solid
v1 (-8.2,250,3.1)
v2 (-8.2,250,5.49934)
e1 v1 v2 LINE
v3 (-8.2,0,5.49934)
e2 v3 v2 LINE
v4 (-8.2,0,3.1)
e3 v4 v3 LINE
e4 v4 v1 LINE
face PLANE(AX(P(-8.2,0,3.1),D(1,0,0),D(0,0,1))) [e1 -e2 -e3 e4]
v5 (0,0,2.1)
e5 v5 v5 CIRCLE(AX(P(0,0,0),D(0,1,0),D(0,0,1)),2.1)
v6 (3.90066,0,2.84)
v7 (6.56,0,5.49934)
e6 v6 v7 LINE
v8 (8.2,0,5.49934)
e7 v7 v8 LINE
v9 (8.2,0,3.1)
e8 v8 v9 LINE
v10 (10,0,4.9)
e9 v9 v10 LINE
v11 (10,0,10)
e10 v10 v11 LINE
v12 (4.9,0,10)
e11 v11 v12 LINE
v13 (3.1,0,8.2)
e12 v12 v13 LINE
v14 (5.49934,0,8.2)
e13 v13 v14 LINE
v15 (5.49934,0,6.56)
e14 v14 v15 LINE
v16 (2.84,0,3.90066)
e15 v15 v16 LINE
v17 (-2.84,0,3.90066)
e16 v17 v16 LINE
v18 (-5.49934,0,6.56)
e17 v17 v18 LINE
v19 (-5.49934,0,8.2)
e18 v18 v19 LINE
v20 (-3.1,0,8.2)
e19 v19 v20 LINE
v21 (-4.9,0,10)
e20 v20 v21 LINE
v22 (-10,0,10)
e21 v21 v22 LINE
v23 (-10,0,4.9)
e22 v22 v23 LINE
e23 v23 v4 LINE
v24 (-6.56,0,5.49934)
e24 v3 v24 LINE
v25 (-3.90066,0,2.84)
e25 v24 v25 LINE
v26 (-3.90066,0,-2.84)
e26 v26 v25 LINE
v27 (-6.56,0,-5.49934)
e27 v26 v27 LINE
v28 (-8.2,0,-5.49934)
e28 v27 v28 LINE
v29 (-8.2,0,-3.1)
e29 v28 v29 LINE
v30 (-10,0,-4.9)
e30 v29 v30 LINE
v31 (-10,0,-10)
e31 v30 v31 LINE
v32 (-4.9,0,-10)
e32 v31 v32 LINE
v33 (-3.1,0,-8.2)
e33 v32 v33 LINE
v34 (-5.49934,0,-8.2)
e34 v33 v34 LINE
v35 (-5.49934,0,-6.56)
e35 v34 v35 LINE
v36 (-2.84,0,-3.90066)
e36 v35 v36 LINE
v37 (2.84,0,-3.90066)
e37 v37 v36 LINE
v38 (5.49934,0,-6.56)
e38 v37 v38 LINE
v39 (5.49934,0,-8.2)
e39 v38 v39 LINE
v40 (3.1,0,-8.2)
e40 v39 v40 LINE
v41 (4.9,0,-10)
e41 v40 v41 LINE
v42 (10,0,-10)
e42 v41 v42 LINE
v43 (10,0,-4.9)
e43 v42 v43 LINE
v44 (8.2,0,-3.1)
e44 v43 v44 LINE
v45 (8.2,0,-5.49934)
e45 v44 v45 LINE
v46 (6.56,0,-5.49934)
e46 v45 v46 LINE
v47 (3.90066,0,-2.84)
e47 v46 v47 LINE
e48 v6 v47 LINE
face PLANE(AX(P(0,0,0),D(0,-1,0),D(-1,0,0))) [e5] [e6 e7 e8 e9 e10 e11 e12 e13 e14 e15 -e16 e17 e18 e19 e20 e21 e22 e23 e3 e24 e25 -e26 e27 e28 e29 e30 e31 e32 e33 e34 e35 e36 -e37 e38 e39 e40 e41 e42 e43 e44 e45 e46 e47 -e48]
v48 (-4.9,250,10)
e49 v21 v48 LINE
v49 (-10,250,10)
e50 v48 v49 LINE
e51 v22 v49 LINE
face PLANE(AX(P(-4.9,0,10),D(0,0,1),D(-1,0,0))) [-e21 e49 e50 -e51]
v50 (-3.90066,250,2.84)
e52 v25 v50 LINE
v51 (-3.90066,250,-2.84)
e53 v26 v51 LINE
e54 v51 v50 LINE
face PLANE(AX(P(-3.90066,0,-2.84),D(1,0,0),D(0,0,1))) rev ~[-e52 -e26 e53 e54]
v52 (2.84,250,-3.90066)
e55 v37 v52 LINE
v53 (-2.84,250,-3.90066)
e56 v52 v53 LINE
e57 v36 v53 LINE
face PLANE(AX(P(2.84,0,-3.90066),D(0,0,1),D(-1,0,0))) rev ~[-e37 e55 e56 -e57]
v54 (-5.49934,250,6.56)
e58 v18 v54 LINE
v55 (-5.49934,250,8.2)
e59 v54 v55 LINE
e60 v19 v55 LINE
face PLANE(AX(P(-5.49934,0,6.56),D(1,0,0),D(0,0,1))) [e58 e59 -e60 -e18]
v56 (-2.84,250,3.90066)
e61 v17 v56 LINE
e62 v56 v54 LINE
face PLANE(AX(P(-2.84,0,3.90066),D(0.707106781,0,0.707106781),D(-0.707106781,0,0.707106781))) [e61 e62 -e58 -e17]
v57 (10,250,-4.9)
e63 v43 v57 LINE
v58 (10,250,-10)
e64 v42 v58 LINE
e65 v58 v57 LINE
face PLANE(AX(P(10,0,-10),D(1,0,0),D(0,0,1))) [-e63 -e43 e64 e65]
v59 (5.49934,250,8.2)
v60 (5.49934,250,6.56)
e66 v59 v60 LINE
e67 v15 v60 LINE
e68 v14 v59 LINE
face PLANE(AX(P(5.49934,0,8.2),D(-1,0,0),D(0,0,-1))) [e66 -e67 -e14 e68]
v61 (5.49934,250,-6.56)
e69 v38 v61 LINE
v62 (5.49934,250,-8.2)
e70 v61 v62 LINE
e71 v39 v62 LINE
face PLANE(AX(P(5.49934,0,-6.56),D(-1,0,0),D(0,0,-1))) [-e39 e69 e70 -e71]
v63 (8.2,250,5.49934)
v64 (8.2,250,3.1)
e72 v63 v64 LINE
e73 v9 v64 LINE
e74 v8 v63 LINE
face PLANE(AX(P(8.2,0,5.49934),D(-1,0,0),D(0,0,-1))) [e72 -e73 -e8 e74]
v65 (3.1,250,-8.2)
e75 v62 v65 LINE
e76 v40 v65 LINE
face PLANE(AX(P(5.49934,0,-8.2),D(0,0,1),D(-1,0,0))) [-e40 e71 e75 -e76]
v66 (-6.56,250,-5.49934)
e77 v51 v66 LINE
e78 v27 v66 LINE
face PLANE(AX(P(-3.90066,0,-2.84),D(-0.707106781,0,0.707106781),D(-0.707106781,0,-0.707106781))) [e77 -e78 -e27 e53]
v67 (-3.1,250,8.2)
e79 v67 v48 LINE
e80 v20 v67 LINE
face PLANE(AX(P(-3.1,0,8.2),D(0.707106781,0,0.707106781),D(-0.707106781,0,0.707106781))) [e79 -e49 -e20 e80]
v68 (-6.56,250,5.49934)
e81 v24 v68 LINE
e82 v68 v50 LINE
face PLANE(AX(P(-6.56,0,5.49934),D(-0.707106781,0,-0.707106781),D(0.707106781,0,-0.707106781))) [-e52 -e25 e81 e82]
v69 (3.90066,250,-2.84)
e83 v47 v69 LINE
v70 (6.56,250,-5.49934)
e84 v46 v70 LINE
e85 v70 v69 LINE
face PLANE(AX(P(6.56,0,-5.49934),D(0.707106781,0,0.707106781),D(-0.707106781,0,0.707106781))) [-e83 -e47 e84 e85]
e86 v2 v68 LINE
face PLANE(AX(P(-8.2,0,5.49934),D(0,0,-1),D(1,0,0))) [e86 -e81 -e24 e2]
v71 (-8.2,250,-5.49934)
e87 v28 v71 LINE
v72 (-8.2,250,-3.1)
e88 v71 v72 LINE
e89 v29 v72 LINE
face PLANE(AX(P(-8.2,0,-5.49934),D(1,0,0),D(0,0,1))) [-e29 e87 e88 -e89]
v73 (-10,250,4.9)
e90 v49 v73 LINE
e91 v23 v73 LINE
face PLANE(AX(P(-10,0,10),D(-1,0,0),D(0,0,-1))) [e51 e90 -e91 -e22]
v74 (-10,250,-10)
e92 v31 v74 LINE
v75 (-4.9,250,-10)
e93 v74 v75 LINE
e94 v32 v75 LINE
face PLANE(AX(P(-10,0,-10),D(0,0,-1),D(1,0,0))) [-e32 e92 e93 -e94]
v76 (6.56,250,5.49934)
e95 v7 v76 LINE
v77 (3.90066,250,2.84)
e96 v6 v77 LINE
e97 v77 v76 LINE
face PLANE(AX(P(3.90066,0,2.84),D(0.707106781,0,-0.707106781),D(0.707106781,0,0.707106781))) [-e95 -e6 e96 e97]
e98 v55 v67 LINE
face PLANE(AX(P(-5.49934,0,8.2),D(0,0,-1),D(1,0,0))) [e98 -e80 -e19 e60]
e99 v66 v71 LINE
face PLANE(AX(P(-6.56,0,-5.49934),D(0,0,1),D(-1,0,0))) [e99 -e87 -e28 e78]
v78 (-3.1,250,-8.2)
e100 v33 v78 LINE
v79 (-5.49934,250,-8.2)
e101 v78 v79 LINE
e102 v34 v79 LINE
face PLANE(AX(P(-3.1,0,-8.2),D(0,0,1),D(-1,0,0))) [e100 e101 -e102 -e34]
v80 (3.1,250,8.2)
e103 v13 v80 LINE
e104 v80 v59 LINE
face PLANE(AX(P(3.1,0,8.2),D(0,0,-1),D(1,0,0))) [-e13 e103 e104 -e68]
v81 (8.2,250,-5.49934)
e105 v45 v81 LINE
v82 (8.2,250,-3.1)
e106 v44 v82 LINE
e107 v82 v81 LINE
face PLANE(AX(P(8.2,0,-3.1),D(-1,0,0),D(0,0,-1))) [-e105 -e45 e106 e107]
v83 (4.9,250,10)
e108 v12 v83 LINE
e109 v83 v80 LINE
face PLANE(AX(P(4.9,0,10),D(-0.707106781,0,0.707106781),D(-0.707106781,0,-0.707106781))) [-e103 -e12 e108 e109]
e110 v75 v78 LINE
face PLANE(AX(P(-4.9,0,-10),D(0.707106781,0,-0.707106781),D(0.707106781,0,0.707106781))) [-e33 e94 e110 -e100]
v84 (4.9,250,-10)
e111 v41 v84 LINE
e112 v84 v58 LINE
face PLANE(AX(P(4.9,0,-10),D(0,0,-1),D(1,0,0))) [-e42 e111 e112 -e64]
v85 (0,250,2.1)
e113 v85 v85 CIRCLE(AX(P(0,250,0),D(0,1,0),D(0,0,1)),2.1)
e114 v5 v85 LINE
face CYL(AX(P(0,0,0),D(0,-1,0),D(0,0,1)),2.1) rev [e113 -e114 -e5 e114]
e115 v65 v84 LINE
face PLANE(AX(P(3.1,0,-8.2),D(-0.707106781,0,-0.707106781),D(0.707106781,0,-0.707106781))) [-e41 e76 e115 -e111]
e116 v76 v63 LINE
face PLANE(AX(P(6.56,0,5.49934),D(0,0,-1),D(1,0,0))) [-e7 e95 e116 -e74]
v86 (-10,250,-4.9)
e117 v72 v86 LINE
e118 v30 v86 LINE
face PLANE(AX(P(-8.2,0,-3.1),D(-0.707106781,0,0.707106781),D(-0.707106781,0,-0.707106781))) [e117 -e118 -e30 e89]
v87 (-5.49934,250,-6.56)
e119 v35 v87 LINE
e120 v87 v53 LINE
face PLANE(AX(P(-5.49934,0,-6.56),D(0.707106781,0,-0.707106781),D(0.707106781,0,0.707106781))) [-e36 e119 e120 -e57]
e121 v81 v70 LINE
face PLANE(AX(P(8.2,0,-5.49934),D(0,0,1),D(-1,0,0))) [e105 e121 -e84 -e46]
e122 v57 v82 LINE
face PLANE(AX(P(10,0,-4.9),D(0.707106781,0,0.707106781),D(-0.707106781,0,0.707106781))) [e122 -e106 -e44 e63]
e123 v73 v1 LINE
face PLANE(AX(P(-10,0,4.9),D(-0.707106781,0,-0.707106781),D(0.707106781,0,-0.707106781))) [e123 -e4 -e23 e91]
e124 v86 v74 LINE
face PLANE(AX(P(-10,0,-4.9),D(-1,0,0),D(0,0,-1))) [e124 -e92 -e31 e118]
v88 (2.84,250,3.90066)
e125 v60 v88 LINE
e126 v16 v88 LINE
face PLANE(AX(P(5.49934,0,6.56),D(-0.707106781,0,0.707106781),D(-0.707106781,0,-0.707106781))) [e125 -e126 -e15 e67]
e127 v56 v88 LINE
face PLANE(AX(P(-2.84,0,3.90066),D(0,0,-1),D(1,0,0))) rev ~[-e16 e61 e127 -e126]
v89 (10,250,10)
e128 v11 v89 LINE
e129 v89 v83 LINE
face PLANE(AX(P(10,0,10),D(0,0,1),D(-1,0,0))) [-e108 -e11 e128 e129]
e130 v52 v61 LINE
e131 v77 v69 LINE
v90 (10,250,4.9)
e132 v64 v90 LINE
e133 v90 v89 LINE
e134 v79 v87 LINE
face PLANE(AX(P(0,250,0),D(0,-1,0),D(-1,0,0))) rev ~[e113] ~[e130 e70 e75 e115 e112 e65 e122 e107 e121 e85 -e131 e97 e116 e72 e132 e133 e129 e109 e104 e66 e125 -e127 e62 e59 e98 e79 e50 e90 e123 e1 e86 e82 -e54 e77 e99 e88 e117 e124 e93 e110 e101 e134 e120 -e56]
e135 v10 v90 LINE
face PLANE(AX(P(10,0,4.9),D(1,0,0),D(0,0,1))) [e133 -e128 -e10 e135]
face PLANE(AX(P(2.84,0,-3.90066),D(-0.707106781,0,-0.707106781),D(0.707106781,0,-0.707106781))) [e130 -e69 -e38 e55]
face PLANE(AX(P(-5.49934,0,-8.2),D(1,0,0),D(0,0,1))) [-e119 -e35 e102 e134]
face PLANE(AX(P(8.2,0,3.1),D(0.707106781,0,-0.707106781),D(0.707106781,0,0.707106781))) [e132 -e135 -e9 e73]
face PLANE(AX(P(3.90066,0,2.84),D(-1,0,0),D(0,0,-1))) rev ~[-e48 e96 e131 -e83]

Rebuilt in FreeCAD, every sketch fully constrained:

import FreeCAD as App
import Part
import Sketcher

V = App.Vector
Q = App.Units.Quantity


def add_polygon(sketch, points):
    """Adds a closed chain of lines whose ends are joined by coincident constraints."""
    first, n = sketch.GeometryCount, len(points)
    for a, b in zip(points, points[1:] + points[:1]):
        sketch.addGeometry(Part.LineSegment(App.Vector(*a, 0), App.Vector(*b, 0)), False)
    for i in range(n):
        sketch.addConstraint(Sketcher.Constraint("Coincident", first + i, 2, first + (i + 1) % n, 1))

doc = App.newDocument("Part")
body = doc.addObject("PartDesign::Body", "Body")

# Sketch on XZ plane
sketch1 = body.newObject("Sketcher::SketchObject", "Sketch")
sketch1.AttachmentSupport = (doc.getObject("XZ_Plane"), [""])
sketch1.MapMode = "FlatFace"
add_polygon(sketch1, [(-3.9, -2.8), (-3.9, 2.8), (-6.6, 5.5), (-8.2, 5.5), (-8.2, 3.1), (-10, 4.9), (-10, 10), (-4.9, 10), (-3.1, 8.2), (-5.5, 8.2), (-5.5, 6.6), (-2.8, 3.9), (2.8, 3.9), (5.5, 6.6), (5.5, 8.2), (3.1, 8.2), (4.9, 10), (10, 10), (10, 4.9), (8.2, 3.1), (8.2, 5.5), (6.6, 5.5), (3.9, 2.8), (3.9, -2.8), (6.6, -5.5), (8.2, -5.5), (8.2, -3.1), (10, -4.9), (10, -10), (4.9, -10), (3.1, -8.2), (5.5, -8.2), (5.5, -6.6), (2.8, -3.9), (-2.8, -3.9), (-5.5, -6.6), (-5.5, -8.2), (-3.1, -8.2), (-4.9, -10), (-10, -10), (-10, -4.9), (-8.2, -3.1), (-8.2, -5.5), (-6.6, -5.5)])  # lines 0-43
sketch1.addGeometry(Part.Circle(V(0, 0, 0), V(0, 0, 1), 2.1), False)  # 44
sketch1.addConstraint(Sketcher.Constraint("Vertical", 0))
sketch1.addConstraint(Sketcher.Constraint("Horizontal", 2))
sketch1.addConstraint(Sketcher.Constraint("Vertical", 3))
sketch1.addConstraint(Sketcher.Constraint("Vertical", 5))
sketch1.addConstraint(Sketcher.Constraint("Horizontal", 6))
sketch1.addConstraint(Sketcher.Constraint("Horizontal", 8))
sketch1.addConstraint(Sketcher.Constraint("Vertical", 9))
sketch1.addConstraint(Sketcher.Constraint("Horizontal", 11))
sketch1.addConstraint(Sketcher.Constraint("Vertical", 13))
sketch1.addConstraint(Sketcher.Constraint("Horizontal", 14))
sketch1.addConstraint(Sketcher.Constraint("Horizontal", 16))
sketch1.addConstraint(Sketcher.Constraint("Vertical", 17))
sketch1.addConstraint(Sketcher.Constraint("Vertical", 19))
sketch1.addConstraint(Sketcher.Constraint("Horizontal", 20))
sketch1.addConstraint(Sketcher.Constraint("Vertical", 22))
sketch1.addConstraint(Sketcher.Constraint("Horizontal", 24))
sketch1.addConstraint(Sketcher.Constraint("Vertical", 25))
sketch1.addConstraint(Sketcher.Constraint("Vertical", 27))
sketch1.addConstraint(Sketcher.Constraint("Horizontal", 28))
sketch1.addConstraint(Sketcher.Constraint("Horizontal", 30))
sketch1.addConstraint(Sketcher.Constraint("Vertical", 31))
sketch1.addConstraint(Sketcher.Constraint("Horizontal", 33))
sketch1.addConstraint(Sketcher.Constraint("Vertical", 35))
sketch1.addConstraint(Sketcher.Constraint("Horizontal", 36))
sketch1.addConstraint(Sketcher.Constraint("Horizontal", 38))
sketch1.addConstraint(Sketcher.Constraint("Vertical", 39))
sketch1.addConstraint(Sketcher.Constraint("Vertical", 41))
sketch1.addConstraint(Sketcher.Constraint("Horizontal", 42))
sketch1.addConstraint(Sketcher.Constraint("Coincident", 44, 3, -1, 1))
sketch1.addConstraint(Sketcher.Constraint("Symmetric", 0, 2, 22, 2, -1, 1))
sketch1.addConstraint(Sketcher.Constraint("Symmetric", 1, 2, 23, 2, -1, 1))
sketch1.addConstraint(Sketcher.Constraint("Symmetric", 3, 2, 25, 2, -1, 1))
sketch1.addConstraint(Sketcher.Constraint("Symmetric", 4, 2, 26, 2, -1, 1))
sketch1.addConstraint(Sketcher.Constraint("Symmetric", 6, 2, 28, 2, -1, 1))
sketch1.addConstraint(Sketcher.Constraint("Symmetric", 7, 2, 29, 2, -1, 1))
sketch1.addConstraint(Sketcher.Constraint("Symmetric", 9, 2, 31, 2, -1, 1))
sketch1.addConstraint(Sketcher.Constraint("Symmetric", 10, 2, 32, 2, -1, 1))
sketch1.addConstraint(Sketcher.Constraint("Symmetric", 12, 2, 34, 2, -1, 1))
sketch1.addConstraint(Sketcher.Constraint("Symmetric", 14, 2, 36, 2, -1, 1))
sketch1.addConstraint(Sketcher.Constraint("Symmetric", 15, 2, 37, 2, -1, 1))
sketch1.addConstraint(Sketcher.Constraint("Symmetric", 17, 2, 39, 2, -1, 1))
sketch1.addConstraint(Sketcher.Constraint("Symmetric", 18, 2, 40, 2, -1, 1))
sketch1.addConstraint(Sketcher.Constraint("Symmetric", 20, 2, 42, 2, -1, 1))
sketch1.addConstraint(Sketcher.Constraint("Symmetric", 9, 2, 12, 2, -2))
sketch1.addConstraint(Sketcher.Constraint("Symmetric", 7, 2, 14, 2, -2))
sketch1.addConstraint(Sketcher.Constraint("Symmetric", 6, 2, 15, 2, -2))
sketch1.addConstraint(Sketcher.Constraint("Symmetric", 4, 2, 17, 2, -2))
sketch1.addConstraint(Sketcher.Constraint("Symmetric", 3, 2, 18, 2, -2))
sketch1.addConstraint(Sketcher.Constraint("Symmetric", 1, 2, 20, 2, -2))
sketch1.addConstraint(Sketcher.Constraint("Parallel", 1, 4))
sketch1.addConstraint(Sketcher.Constraint("Parallel", 4, 7))
sketch1.addConstraint(Sketcher.Constraint("Parallel", 7, 10))
sketch1.addConstraint(Sketcher.Constraint("Perpendicular", 10, 12))
sketch1.addConstraint(Sketcher.Constraint("Parallel", 12, 15))
sketch1.addConstraint(Sketcher.Constraint("Parallel", 18, 21))
sketch1.addConstraint(Sketcher.Constraint("Perpendicular", 32, 34))
sketch1.addConstraint(Sketcher.Constraint("Parallel", 40, 43))
sketch1.addConstraint(Sketcher.Constraint("Equal", 33, 0))
sketch1.addConstraint(Sketcher.Constraint("Equal", 36, 3))
sketch1.addConstraint(Sketcher.Constraint("Equal", 38, 5))
sketch1.addConstraint(Sketcher.Constraint("Equal", 42, 9))
sketch1.addConstraint(Sketcher.Constraint("Equal", 4, 7))
sketch1.addConstraint(Sketcher.Constraint("Equal", 1, 10))
sketch1.addConstraint(Sketcher.Constraint("Diameter", 44, Q("4.2 mm")))
sketch1.addConstraint(Sketcher.Constraint("DistanceX", 6, 1, 6, 2, Q("5.1 mm")))
sketch1.addConstraint(Sketcher.Constraint("DistanceX", 4, 2, -1, 1, Q("10 mm")))
sketch1.addConstraint(Sketcher.Constraint("DistanceX", 7, 2, 15, 2, Q("8 mm")))
sketch1.addConstraint(Sketcher.Constraint("DistanceX", 2, 2, 2, 1, Q("1.64 mm")))
sketch1.addConstraint(Sketcher.Constraint("DistanceX", 11, 1, 11, 2, Q("5.68 mm")))
sketch1.addConstraint(Sketcher.Constraint("DistanceX", 8, 2, 8, 1, Q("2.39934 mm")))
pad1 = body.newObject("PartDesign::Pad", "Pad")
pad1.Profile = sketch1
pad1.Length = 250
pad1.Reversed = True

doc.recompute()
